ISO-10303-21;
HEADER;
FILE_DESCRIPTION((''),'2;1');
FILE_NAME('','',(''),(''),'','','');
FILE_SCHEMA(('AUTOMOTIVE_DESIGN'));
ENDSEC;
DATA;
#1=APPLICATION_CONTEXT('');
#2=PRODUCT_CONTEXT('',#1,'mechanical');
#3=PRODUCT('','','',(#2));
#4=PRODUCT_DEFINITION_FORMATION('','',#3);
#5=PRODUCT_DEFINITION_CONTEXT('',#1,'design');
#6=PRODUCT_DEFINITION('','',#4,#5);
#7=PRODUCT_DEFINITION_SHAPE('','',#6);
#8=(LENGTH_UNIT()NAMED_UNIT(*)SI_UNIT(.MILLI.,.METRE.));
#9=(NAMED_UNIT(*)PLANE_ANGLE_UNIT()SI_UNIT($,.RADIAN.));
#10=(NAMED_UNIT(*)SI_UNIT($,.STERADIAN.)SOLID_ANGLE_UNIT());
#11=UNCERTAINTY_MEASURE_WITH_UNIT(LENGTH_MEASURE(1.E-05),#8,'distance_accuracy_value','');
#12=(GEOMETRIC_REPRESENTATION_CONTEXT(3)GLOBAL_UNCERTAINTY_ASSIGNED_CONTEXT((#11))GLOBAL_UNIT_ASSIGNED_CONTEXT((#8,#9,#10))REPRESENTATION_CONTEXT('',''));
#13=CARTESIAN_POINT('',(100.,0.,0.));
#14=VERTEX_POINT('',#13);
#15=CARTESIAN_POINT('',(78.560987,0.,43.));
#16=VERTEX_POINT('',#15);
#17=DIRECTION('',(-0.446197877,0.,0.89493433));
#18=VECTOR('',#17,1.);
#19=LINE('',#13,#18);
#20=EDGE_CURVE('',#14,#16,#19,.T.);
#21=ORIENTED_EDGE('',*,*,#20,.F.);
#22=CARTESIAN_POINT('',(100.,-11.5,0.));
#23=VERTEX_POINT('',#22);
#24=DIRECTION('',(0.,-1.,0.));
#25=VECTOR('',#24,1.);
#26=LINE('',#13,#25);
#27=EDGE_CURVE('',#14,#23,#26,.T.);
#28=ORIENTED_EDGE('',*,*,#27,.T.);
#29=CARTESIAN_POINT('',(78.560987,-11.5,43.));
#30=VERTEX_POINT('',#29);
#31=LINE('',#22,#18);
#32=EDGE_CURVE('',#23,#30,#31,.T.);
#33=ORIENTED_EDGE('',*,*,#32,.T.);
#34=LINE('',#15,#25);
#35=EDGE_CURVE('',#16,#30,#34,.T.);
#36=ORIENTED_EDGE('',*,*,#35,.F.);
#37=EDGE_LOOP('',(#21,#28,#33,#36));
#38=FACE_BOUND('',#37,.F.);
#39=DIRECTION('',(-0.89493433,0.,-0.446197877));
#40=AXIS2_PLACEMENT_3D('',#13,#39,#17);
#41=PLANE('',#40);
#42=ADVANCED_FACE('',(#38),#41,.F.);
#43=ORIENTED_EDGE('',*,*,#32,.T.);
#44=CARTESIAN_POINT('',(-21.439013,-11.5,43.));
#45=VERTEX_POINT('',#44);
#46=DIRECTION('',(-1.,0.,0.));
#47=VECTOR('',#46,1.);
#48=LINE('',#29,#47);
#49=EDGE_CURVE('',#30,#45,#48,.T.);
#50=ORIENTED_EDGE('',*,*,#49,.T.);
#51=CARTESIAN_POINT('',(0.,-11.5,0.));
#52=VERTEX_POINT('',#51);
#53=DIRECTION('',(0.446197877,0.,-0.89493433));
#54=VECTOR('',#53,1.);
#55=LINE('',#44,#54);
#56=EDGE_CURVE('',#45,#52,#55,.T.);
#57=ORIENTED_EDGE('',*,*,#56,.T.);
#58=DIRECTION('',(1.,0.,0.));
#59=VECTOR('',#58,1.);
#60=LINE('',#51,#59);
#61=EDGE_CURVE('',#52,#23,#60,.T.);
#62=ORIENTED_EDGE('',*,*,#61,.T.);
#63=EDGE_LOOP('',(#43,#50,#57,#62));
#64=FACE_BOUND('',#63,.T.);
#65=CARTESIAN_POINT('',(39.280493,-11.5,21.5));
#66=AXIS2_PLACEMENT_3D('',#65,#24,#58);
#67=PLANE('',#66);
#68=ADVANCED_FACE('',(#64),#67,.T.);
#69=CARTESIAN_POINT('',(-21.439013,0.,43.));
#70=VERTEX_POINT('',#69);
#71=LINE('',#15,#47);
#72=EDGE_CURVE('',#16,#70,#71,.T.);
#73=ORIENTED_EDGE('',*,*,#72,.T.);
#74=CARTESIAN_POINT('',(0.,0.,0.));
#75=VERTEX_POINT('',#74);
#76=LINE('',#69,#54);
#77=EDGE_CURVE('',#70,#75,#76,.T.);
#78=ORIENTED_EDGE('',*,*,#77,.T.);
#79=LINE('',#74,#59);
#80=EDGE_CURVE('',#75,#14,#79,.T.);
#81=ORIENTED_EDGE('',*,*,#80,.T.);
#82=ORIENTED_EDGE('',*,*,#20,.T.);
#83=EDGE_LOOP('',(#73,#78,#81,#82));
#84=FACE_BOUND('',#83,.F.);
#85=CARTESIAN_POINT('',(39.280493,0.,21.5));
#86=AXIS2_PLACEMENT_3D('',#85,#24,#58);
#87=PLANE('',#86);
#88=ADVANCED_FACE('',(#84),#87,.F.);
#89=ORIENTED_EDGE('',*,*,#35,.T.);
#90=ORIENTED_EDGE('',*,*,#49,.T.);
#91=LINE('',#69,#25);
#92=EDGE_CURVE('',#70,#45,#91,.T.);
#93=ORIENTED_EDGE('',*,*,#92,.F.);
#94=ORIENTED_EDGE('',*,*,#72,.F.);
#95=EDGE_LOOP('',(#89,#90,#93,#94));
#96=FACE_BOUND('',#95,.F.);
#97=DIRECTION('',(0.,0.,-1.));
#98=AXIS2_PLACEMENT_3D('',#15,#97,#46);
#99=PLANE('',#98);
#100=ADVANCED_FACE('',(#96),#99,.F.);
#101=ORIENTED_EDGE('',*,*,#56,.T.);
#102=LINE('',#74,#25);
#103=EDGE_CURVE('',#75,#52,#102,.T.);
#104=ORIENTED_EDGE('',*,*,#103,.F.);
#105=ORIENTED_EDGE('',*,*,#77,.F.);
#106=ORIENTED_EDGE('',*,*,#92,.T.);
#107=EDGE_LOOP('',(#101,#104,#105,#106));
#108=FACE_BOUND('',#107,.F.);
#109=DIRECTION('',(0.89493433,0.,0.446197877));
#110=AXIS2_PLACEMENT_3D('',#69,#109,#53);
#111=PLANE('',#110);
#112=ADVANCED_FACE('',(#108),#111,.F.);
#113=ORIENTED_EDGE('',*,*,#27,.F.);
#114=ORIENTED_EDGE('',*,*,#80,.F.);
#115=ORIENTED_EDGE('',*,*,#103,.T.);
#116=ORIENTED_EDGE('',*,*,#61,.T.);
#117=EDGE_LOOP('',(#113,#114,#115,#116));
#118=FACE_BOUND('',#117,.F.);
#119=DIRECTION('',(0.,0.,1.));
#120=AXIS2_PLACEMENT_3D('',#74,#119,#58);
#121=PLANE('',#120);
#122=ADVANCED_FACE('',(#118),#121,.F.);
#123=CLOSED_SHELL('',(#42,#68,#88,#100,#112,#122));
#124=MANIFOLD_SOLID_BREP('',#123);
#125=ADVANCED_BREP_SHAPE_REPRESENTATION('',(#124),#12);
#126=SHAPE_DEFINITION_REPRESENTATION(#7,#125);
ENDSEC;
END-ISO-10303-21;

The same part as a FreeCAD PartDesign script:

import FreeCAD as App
import Part
import Sketcher

V = App.Vector
Q = App.Units.Quantity

doc = App.newDocument("Part")
body = doc.addObject("PartDesign::Body", "Body")

# Sketch on XZ plane
sketch1 = body.newObject("Sketcher::SketchObject", "Sketch")
sketch1.AttachmentSupport = (doc.getObject("XZ_Plane"), [""])
sketch1.MapMode = "FlatFace"
sketch1.addGeometry([
    Part.LineSegment(V(0, 0, 0), V(100, 0, 0)),
    Part.LineSegment(V(100, 0, 0), V(78.560987, 43, 0)),
    Part.LineSegment(V(78.560987, 43, 0), V(-21.439013, 43, 0)),
    Part.LineSegment(V(-21.439013, 43, 0), V(0, 0, 0)),
], False)
sketch1.addConstraint([
    Sketcher.Constraint("Coincident", 0, 2, 1, 1),
    Sketcher.Constraint("Coincident", 1, 2, 2, 1),
    Sketcher.Constraint("Coincident", 2, 2, 3, 1),
    Sketcher.Constraint("Coincident", 3, 2, 0, 1),
    Sketcher.Constraint("Horizontal", 0),
    Sketcher.Constraint("Horizontal", 2),
    Sketcher.Constraint("Coincident", 3, 2, -1, 1),
    Sketcher.Constraint("Parallel", 1, 3),
    Sketcher.Constraint("DistanceX", 0, 1, 0, 2, 100.0),
    Sketcher.Constraint("DistanceY", -1, 1, 1, 2, 43.0),
    Sketcher.Constraint("Angle", 1, Q("116.500004 deg")),
])
pad1 = body.newObject("PartDesign::Pad", "Pad")
pad1.Profile = sketch1
pad1.Length = 11.5

doc.recompute()
